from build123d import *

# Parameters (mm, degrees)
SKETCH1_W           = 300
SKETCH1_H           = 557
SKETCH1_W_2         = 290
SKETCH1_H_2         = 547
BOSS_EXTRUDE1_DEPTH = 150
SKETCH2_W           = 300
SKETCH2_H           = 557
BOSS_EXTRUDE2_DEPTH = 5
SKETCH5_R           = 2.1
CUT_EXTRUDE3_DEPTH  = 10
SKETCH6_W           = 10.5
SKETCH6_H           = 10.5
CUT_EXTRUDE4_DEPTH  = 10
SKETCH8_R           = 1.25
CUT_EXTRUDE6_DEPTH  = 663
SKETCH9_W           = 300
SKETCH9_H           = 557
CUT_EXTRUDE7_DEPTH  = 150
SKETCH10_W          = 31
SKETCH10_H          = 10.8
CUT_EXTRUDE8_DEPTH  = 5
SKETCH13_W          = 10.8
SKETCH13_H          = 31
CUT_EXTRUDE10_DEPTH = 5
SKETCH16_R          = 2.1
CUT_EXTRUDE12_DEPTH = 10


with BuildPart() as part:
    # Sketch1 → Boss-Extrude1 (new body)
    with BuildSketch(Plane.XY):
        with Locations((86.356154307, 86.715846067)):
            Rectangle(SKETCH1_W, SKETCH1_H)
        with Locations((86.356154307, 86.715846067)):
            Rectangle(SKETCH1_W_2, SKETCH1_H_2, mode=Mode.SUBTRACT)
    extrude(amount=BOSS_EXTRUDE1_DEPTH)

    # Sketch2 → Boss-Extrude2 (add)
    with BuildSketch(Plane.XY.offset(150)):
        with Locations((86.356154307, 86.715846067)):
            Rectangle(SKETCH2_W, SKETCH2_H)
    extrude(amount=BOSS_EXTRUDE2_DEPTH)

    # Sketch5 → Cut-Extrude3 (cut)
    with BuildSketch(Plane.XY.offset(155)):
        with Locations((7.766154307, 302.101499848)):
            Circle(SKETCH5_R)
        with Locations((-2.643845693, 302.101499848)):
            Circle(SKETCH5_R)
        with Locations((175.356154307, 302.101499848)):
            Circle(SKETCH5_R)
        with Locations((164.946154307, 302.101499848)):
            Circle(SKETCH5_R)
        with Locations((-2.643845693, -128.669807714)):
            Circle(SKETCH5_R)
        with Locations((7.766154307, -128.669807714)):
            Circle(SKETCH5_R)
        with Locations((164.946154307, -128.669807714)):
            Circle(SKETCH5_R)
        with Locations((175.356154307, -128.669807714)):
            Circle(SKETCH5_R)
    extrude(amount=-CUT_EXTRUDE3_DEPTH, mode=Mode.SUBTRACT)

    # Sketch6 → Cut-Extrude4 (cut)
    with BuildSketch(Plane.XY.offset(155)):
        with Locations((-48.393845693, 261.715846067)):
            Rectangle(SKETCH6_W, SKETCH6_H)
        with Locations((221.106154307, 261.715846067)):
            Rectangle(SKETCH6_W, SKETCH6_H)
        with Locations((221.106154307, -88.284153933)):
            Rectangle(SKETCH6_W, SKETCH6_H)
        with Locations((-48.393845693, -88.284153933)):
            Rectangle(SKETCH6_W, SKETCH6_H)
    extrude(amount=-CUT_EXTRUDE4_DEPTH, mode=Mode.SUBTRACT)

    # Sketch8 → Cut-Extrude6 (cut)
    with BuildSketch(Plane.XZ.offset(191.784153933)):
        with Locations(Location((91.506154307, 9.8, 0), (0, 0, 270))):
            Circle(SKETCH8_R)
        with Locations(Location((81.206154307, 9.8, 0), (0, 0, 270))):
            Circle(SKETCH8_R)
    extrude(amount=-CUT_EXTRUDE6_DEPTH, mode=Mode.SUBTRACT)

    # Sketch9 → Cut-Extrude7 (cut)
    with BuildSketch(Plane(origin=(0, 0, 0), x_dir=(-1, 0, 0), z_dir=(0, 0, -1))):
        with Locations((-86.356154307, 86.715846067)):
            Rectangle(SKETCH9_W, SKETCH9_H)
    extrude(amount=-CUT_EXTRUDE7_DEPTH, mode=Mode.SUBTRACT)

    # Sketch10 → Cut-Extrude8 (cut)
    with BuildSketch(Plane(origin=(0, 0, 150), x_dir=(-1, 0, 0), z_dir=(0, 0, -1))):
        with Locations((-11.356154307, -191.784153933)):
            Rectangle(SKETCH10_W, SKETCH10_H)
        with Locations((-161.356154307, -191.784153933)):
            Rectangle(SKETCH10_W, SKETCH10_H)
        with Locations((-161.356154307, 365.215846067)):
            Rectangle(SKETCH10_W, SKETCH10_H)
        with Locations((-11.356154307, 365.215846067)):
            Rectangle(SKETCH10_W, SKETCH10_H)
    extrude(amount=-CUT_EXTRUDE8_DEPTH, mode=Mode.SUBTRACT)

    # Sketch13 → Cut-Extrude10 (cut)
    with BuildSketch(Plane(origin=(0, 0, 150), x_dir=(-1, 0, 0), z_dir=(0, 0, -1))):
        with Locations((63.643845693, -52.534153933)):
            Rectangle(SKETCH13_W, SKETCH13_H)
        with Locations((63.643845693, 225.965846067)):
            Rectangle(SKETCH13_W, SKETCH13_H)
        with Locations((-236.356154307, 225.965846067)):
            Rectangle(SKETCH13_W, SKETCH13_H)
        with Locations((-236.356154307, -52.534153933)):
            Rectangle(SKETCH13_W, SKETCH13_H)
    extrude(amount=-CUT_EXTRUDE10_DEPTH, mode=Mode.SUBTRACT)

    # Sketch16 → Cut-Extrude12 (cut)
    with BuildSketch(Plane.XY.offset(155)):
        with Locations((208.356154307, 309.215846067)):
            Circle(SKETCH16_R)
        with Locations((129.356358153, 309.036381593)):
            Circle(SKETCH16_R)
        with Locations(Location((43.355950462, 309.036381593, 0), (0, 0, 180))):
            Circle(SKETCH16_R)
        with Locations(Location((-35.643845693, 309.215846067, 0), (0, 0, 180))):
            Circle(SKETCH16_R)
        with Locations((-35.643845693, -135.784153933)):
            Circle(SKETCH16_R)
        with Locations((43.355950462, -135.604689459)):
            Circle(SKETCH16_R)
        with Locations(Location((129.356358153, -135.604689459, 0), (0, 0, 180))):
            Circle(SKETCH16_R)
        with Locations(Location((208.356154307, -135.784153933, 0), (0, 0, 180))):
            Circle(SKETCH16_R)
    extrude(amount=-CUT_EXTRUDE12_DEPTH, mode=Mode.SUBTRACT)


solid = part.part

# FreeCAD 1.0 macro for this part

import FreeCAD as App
import Part
import Sketcher
Q = App.Units.Quantity


def add_polygon(sketch, points):
    """Adds a closed chain of lines whose ends are joined by coincident constraints."""
    first, n = sketch.GeometryCount, len(points)
    for a, b in zip(points, points[1:] + points[:1]):
        sketch.addGeometry(Part.LineSegment(App.Vector(*a, 0), App.Vector(*b, 0)), False)
    for i in range(n):
        sketch.addConstraint(Sketcher.Constraint("Coincident", first + i, 2, first + (i + 1) % n, 1))

doc = App.newDocument("Part")
body = doc.addObject("PartDesign::Body", "Body")

sketch1 = body.newObject("Sketcher::SketchObject", "Sketch")
sketch1.AttachmentSupport = (doc.getObject("XY_Plane"), [""])
sketch1.MapMode = "FlatFace"
add_polygon(sketch1, [(-63.643846, 365.215846), (-63.643846, -191.784154), (236.356154, -191.784154), (236.356154, 365.215846)])
add_polygon(sketch1, [(231.356154, -186.784154), (-58.643846, -186.784154), (-58.643846, 360.215846), (231.356154, 360.215846)])
sketch1.addConstraint(Sketcher.Constraint("Vertical", 0))
sketch1.addConstraint(Sketcher.Constraint("Horizontal", 1))
sketch1.addConstraint(Sketcher.Constraint("Vertical", 2))
sketch1.addConstraint(Sketcher.Constraint("Horizontal", 3))
sketch1.addConstraint(Sketcher.Constraint("Horizontal", 4))
sketch1.addConstraint(Sketcher.Constraint("Vertical", 5))
sketch1.addConstraint(Sketcher.Constraint("Horizontal", 6))
sketch1.addConstraint(Sketcher.Constraint("Vertical", 7))
sketch1.addConstraint(Sketcher.Constraint("DistanceX", 1, 1, 1, 2, Q("300 mm")))
sketch1.addConstraint(Sketcher.Constraint("DistanceX", 4, 2, 4, 1, Q("290 mm")))
sketch1.addConstraint(Sketcher.Constraint("DistanceY", 0, 2, 0, 1, Q("557 mm")))
sketch1.addConstraint(Sketcher.Constraint("DistanceY", 5, 1, 5, 2, Q("547 mm")))
sketch1.addConstraint(Sketcher.Constraint("DistanceX", 0, 2, 4, 2, Q("5 mm")))
sketch1.addConstraint(Sketcher.Constraint("DistanceY", 0, 2, 4, 2, Q("5 mm")))
sketch1.addConstraint(Sketcher.Constraint("DistanceX", 0, 2, -1, 1, Q("63.643846 mm")))
sketch1.addConstraint(Sketcher.Constraint("DistanceY", 0, 2, -1, 1, Q("191.784154 mm")))
pad1 = body.newObject("PartDesign::Pad", "Pad")
pad1.Profile = sketch1
pad1.Length = 150

sketch2 = body.newObject("Sketcher::SketchObject", "Sketch001")
sketch2.AttachmentSupport = (doc.getObject("XY_Plane"), [""])
sketch2.MapMode = "FlatFace"
sketch2.AttachmentOffset = App.Placement(App.Vector(0, 0, 150), App.Rotation())
add_polygon(sketch2, [(-63.643846, 365.215846), (-63.643846, -191.784154), (236.356154, -191.784154), (236.356154, 365.215846)])
sketch2.addConstraint(Sketcher.Constraint("Vertical", 0))
sketch2.addConstraint(Sketcher.Constraint("Horizontal", 1))
sketch2.addConstraint(Sketcher.Constraint("Vertical", 2))
sketch2.addConstraint(Sketcher.Constraint("Horizontal", 3))
sketch2.addConstraint(Sketcher.Constraint("DistanceX", 1, 1, 1, 2, Q("300 mm")))
sketch2.addConstraint(Sketcher.Constraint("DistanceY", 0, 2, 0, 1, Q("557 mm")))
sketch2.addConstraint(Sketcher.Constraint("DistanceX", 0, 2, -1, 1, Q("63.643846 mm")))
sketch2.addConstraint(Sketcher.Constraint("DistanceY", 0, 2, -1, 1, Q("191.784154 mm")))
pad2 = body.newObject("PartDesign::Pad", "Pad001")
pad2.Profile = sketch2
pad2.Length = 5

sketch3 = body.newObject("Sketcher::SketchObject", "Sketch002")
sketch3.AttachmentSupport = (doc.getObject("XY_Plane"), [""])
sketch3.MapMode = "FlatFace"
sketch3.AttachmentOffset = App.Placement(App.Vector(0, 0, 155), App.Rotation())
sketch3.addGeometry(Part.Circle(App.Vector(7.766154, 302.1015, 0), App.Vector(0, 0, 1), 2.1), False)
sketch3.addGeometry(Part.Circle(App.Vector(-2.643846, 302.1015, 0), App.Vector(0, 0, 1), 2.1), False)
sketch3.addGeometry(Part.Circle(App.Vector(175.356154, 302.1015, 0), App.Vector(0, 0, 1), 2.1), False)
sketch3.addGeometry(Part.Circle(App.Vector(164.946154, 302.1015, 0), App.Vector(0, 0, 1), 2.1), False)
sketch3.addGeometry(Part.Circle(App.Vector(-2.643846, -128.669808, 0), App.Vector(0, 0, 1), 2.1), False)
sketch3.addGeometry(Part.Circle(App.Vector(7.766154, -128.669808, 0), App.Vector(0, 0, 1), 2.1), False)
sketch3.addGeometry(Part.Circle(App.Vector(164.946154, -128.669808, 0), App.Vector(0, 0, 1), 2.1), False)
sketch3.addGeometry(Part.Circle(App.Vector(175.356154, -128.669808, 0), App.Vector(0, 0, 1), 2.1), False)
sketch3.addConstraint(Sketcher.Constraint("Equal", 0, 1))
sketch3.addConstraint(Sketcher.Constraint("Equal", 1, 2))
sketch3.addConstraint(Sketcher.Constraint("Equal", 2, 3))
sketch3.addConstraint(Sketcher.Constraint("Equal", 3, 4))
sketch3.addConstraint(Sketcher.Constraint("Equal", 4, 5))
sketch3.addConstraint(Sketcher.Constraint("Equal", 5, 6))
sketch3.addConstraint(Sketcher.Constraint("Equal", 6, 7))
sketch3.addConstraint(Sketcher.Constraint("Horizontal", 0, 3, 1, 3))
sketch3.addConstraint(Sketcher.Constraint("Horizontal", 1, 3, 2, 3))
sketch3.addConstraint(Sketcher.Constraint("Horizontal", 2, 3, 3, 3))
sketch3.addConstraint(Sketcher.Constraint("Horizontal", 4, 3, 5, 3))
sketch3.addConstraint(Sketcher.Constraint("Horizontal", 5, 3, 6, 3))
sketch3.addConstraint(Sketcher.Constraint("Horizontal", 6, 3, 7, 3))
sketch3.addConstraint(Sketcher.Constraint("Vertical", 1, 3, 4, 3))
sketch3.addConstraint(Sketcher.Constraint("Vertical", 0, 3, 5, 3))
sketch3.addConstraint(Sketcher.Constraint("Vertical", 3, 3, 6, 3))
sketch3.addConstraint(Sketcher.Constraint("Vertical", 2, 3, 7, 3))
sketch3.addConstraint(Sketcher.Constraint("Diameter", 0, Q("4.2 mm")))
sketch3.addConstraint(Sketcher.Constraint("DistanceX", 1, 3, 2, 3, Q("178 mm")))
sketch3.addConstraint(Sketcher.Constraint("DistanceX", 1, 3, 0, 3, Q("10.41 mm")))
sketch3.addConstraint(Sketcher.Constraint("DistanceX", 3, 3, 2, 3, Q("10.41 mm")))
sketch3.addConstraint(Sketcher.Constraint("DistanceY", -1, 1, 0, 3, Q("302.1015 mm")))
sketch3.addConstraint(Sketcher.Constraint("DistanceX", -1, 1, 0, 3, Q("7.766154 mm")))
sketch3.addConstraint(Sketcher.Constraint("DistanceY", 4, 3, -1, 1, Q("128.669808 mm")))
pocket1 = body.newObject("PartDesign::Pocket", "Pocket")
pocket1.Profile = sketch3
pocket1.Length = 10

sketch4 = body.newObject("Sketcher::SketchObject", "Sketch003")
sketch4.AttachmentSupport = (doc.getObject("XY_Plane"), [""])
sketch4.MapMode = "FlatFace"
sketch4.AttachmentOffset = App.Placement(App.Vector(0, 0, 155), App.Rotation())
add_polygon(sketch4, [(-53.643846, 266.965846), (-53.643846, 256.465846), (-43.143846, 256.465846), (-43.143846, 266.965846)])
add_polygon(sketch4, [(215.856154, 266.965846), (215.856154, 256.465846), (226.356154, 256.465846), (226.356154, 266.965846)])
add_polygon(sketch4, [(215.856154, -83.034154), (215.856154, -93.534154), (226.356154, -93.534154), (226.356154, -83.034154)])
add_polygon(sketch4, [(-53.643846, -83.034154), (-53.643846, -93.534154), (-43.143846, -93.534154), (-43.143846, -83.034154)])
sketch4.addConstraint(Sketcher.Constraint("Vertical", 0))
sketch4.addConstraint(Sketcher.Constraint("Horizontal", 1))
sketch4.addConstraint(Sketcher.Constraint("Vertical", 2))
sketch4.addConstraint(Sketcher.Constraint("Horizontal", 3))
sketch4.addConstraint(Sketcher.Constraint("Vertical", 4))
sketch4.addConstraint(Sketcher.Constraint("Horizontal", 5))
sketch4.addConstraint(Sketcher.Constraint("Vertical", 6))
sketch4.addConstraint(Sketcher.Constraint("Horizontal", 7))
sketch4.addConstraint(Sketcher.Constraint("Vertical", 8))
sketch4.addConstraint(Sketcher.Constraint("Horizontal", 9))
sketch4.addConstraint(Sketcher.Constraint("Vertical", 10))
sketch4.addConstraint(Sketcher.Constraint("Horizontal", 11))
sketch4.addConstraint(Sketcher.Constraint("Vertical", 12))
sketch4.addConstraint(Sketcher.Constraint("Horizontal", 13))
sketch4.addConstraint(Sketcher.Constraint("Vertical", 14))
sketch4.addConstraint(Sketcher.Constraint("Horizontal", 15))
sketch4.addConstraint(Sketcher.Constraint("Horizontal", 1, 2, 4, 2))
sketch4.addConstraint(Sketcher.Constraint("Horizontal", 3, 2, 6, 2))
sketch4.addConstraint(Sketcher.Constraint("Horizontal", 9, 2, 12, 2))
sketch4.addConstraint(Sketcher.Constraint("Horizontal", 11, 2, 14, 2))
sketch4.addConstraint(Sketcher.Constraint("Vertical", 7, 2, 8, 2))
sketch4.addConstraint(Sketcher.Constraint("Vertical", 6, 2, 9, 2))
sketch4.addConstraint(Sketcher.Constraint("Vertical", 3, 2, 12, 2))
sketch4.addConstraint(Sketcher.Constraint("Vertical", 2, 2, 13, 2))
sketch4.addConstraint(Sketcher.Constraint("Equal", 3, 5))
sketch4.addConstraint(Sketcher.Constraint("Equal", 15, 0))
sketch4.addConstraint(Sketcher.Constraint("Equal", 6, 8))
sketch4.addConstraint(Sketcher.Constraint("DistanceX", 1, 1, 1, 2, Q("10.5 mm")))
sketch4.addConstraint(Sketcher.Constraint("DistanceX", 1, 2, 4, 2, Q("259 mm")))
sketch4.addConstraint(Sketcher.Constraint("DistanceY", 8, 2, 4, 2, Q("350 mm")))
sketch4.addConstraint(Sketcher.Constraint("DistanceX", 0, 2, -1, 1, Q("53.643846 mm")))
sketch4.addConstraint(Sketcher.Constraint("DistanceY", -1, 1, 0, 2, Q("256.465846 mm")))
pocket2 = body.newObject("PartDesign::Pocket", "Pocket001")
pocket2.Profile = sketch4
pocket2.Length = 10

sketch5 = body.newObject("Sketcher::SketchObject", "Sketch004")
sketch5.AttachmentSupport = (doc.getObject("XZ_Plane"), [""])
sketch5.MapMode = "FlatFace"
sketch5.AttachmentOffset = App.Placement(App.Vector(0, 0, 191.784154), App.Rotation())
sketch5.addGeometry(Part.Circle(App.Vector(91.506154, 9.8, 0), App.Vector(0, 0, 1), 1.25), False)
sketch5.addGeometry(Part.Circle(App.Vector(81.206154, 9.8, 0), App.Vector(0, 0, 1), 1.25), False)
sketch5.addConstraint(Sketcher.Constraint("Equal", 0, 1))
sketch5.addConstraint(Sketcher.Constraint("Horizontal", 0, 3, 1, 3))
sketch5.addConstraint(Sketcher.Constraint("Diameter", 0, Q("2.5 mm")))
sketch5.addConstraint(Sketcher.Constraint("DistanceY", -1, 1, 0, 3, Q("9.8 mm")))
sketch5.addConstraint(Sketcher.Constraint("DistanceX", 1, 3, 0, 3, Q("10.3 mm")))
sketch5.addConstraint(Sketcher.Constraint("DistanceX", -1, 1, 0, 3, Q("91.506154 mm")))
pocket3 = body.newObject("PartDesign::Pocket", "Pocket002")
pocket3.Profile = sketch5
pocket3.Length = 663

sketch6 = body.newObject("Sketcher::SketchObject", "Sketch005")
sketch6.AttachmentSupport = (doc.getObject("XY_Plane"), [""])
sketch6.MapMode = "FlatFace"
add_polygon(sketch6, [(236.356154, 365.215846), (236.356154, -191.784154), (-63.643846, -191.784154), (-63.643846, 365.215846)])
sketch6.addConstraint(Sketcher.Constraint("Vertical", 0))
sketch6.addConstraint(Sketcher.Constraint("Horizontal", 1))
sketch6.addConstraint(Sketcher.Constraint("Vertical", 2))
sketch6.addConstraint(Sketcher.Constraint("Horizontal", 3))
sketch6.addConstraint(Sketcher.Constraint("DistanceX", 1, 2, 1, 1, Q("300 mm")))
sketch6.addConstraint(Sketcher.Constraint("DistanceY", 0, 2, 0, 1, Q("557 mm")))
sketch6.addConstraint(Sketcher.Constraint("DistanceX", -1, 1, 0, 2, Q("236.356154 mm")))
sketch6.addConstraint(Sketcher.Constraint("DistanceY", 0, 2, -1, 1, Q("191.784154 mm")))
pocket4 = body.newObject("PartDesign::Pocket", "Pocket003")
pocket4.Profile = sketch6
pocket4.Length = 150
pocket4.Reversed = True

sketch7 = body.newObject("Sketcher::SketchObject", "Sketch006")
sketch7.AttachmentSupport = (doc.getObject("XY_Plane"), [""])
sketch7.MapMode = "FlatFace"
sketch7.AttachmentOffset = App.Placement(App.Vector(0, 0, 150), App.Rotation())
add_polygon(sketch7, [(26.856154, -186.384154), (26.856154, -197.184154), (-4.143846, -197.184154), (-4.143846, -186.384154)])
add_polygon(sketch7, [(176.856154, -186.384154), (176.856154, -197.184154), (145.856154, -197.184154), (145.856154, -186.384154)])
add_polygon(sketch7, [(176.856154, 370.615846), (176.856154, 359.815846), (145.856154, 359.815846), (145.856154, 370.615846)])
add_polygon(sketch7, [(26.856154, 370.615846), (26.856154, 359.815846), (-4.143846, 359.815846), (-4.143846, 370.615846)])
sketch7.addConstraint(Sketcher.Constraint("Vertical", 0))
sketch7.addConstraint(Sketcher.Constraint("Horizontal", 1))
sketch7.addConstraint(Sketcher.Constraint("Vertical", 2))
sketch7.addConstraint(Sketcher.Constraint("Horizontal", 3))
sketch7.addConstraint(Sketcher.Constraint("Vertical", 4))
sketch7.addConstraint(Sketcher.Constraint("Horizontal", 5))
sketch7.addConstraint(Sketcher.Constraint("Vertical", 6))
sketch7.addConstraint(Sketcher.Constraint("Horizontal", 7))
sketch7.addConstraint(Sketcher.Constraint("Vertical", 8))
sketch7.addConstraint(Sketcher.Constraint("Horizontal", 9))
sketch7.addConstraint(Sketcher.Constraint("Vertical", 10))
sketch7.addConstraint(Sketcher.Constraint("Horizontal", 11))
sketch7.addConstraint(Sketcher.Constraint("Vertical", 12))
sketch7.addConstraint(Sketcher.Constraint("Horizontal", 13))
sketch7.addConstraint(Sketcher.Constraint("Vertical", 14))
sketch7.addConstraint(Sketcher.Constraint("Horizontal", 15))
sketch7.addConstraint(Sketcher.Constraint("Horizontal", 1, 2, 4, 2))
sketch7.addConstraint(Sketcher.Constraint("Horizontal", 3, 2, 6, 2))
sketch7.addConstraint(Sketcher.Constraint("Horizontal", 9, 2, 12, 2))
sketch7.addConstraint(Sketcher.Constraint("Horizontal", 11, 2, 14, 2))
sketch7.addConstraint(Sketcher.Constraint("Vertical", 7, 2, 8, 2))
sketch7.addConstraint(Sketcher.Constraint("Vertical", 6, 2, 9, 2))
sketch7.addConstraint(Sketcher.Constraint("Vertical", 3, 2, 12, 2))
sketch7.addConstraint(Sketcher.Constraint("Vertical", 2, 2, 13, 2))
sketch7.addConstraint(Sketcher.Constraint("Equal", 3, 5))
sketch7.addConstraint(Sketcher.Constraint("Equal", 6, 8))
sketch7.addConstraint(Sketcher.Constraint("DistanceX", 1, 2, 1, 1, Q("31 mm")))
sketch7.addConstraint(Sketcher.Constraint("DistanceY", 0, 2, 0, 1, Q("10.8 mm")))
sketch7.addConstraint(Sketcher.Constraint("DistanceX", 0, 2, 4, 2, Q("150 mm")))
sketch7.addConstraint(Sketcher.Constraint("DistanceY", 4, 2, 8, 2, Q("557 mm")))
sketch7.addConstraint(Sketcher.Constraint("DistanceX", -1, 1, 0, 2, Q("26.856154 mm")))
sketch7.addConstraint(Sketcher.Constraint("DistanceY", 0, 2, -1, 1, Q("197.184154 mm")))
pocket5 = body.newObject("PartDesign::Pocket", "Pocket004")
pocket5.Profile = sketch7
pocket5.Length = 5
pocket5.Reversed = True

sketch8 = body.newObject("Sketcher::SketchObject", "Sketch007")
sketch8.AttachmentSupport = (doc.getObject("XY_Plane"), [""])
sketch8.MapMode = "FlatFace"
sketch8.AttachmentOffset = App.Placement(App.Vector(0, 0, 150), App.Rotation())
add_polygon(sketch8, [(-58.243846, -37.034154), (-58.243846, -68.034154), (-69.043846, -68.034154), (-69.043846, -37.034154)])
add_polygon(sketch8, [(-58.243846, 241.465846), (-58.243846, 210.465846), (-69.043846, 210.465846), (-69.043846, 241.465846)])
add_polygon(sketch8, [(241.756154, 241.465846), (241.756154, 210.465846), (230.956154, 210.465846), (230.956154, 241.465846)])
add_polygon(sketch8, [(241.756154, -37.034154), (241.756154, -68.034154), (230.956154, -68.034154), (230.956154, -37.034154)])
sketch8.addConstraint(Sketcher.Constraint("Vertical", 0))
sketch8.addConstraint(Sketcher.Constraint("Horizontal", 1))
sketch8.addConstraint(Sketcher.Constraint("Vertical", 2))
sketch8.addConstraint(Sketcher.Constraint("Horizontal", 3))
sketch8.addConstraint(Sketcher.Constraint("Vertical", 4))
sketch8.addConstraint(Sketcher.Constraint("Horizontal", 5))
sketch8.addConstraint(Sketcher.Constraint("Vertical", 6))
sketch8.addConstraint(Sketcher.Constraint("Horizontal", 7))
sketch8.addConstraint(Sketcher.Constraint("Vertical", 8))
sketch8.addConstraint(Sketcher.Constraint("Horizontal", 9))
sketch8.addConstraint(Sketcher.Constraint("Vertical", 10))
sketch8.addConstraint(Sketcher.Constraint("Horizontal", 11))
sketch8.addConstraint(Sketcher.Constraint("Vertical", 12))
sketch8.addConstraint(Sketcher.Constraint("Horizontal", 13))
sketch8.addConstraint(Sketcher.Constraint("Vertical", 14))
sketch8.addConstraint(Sketcher.Constraint("Horizontal", 15))
sketch8.addConstraint(Sketcher.Constraint("Horizontal", 5, 2, 8, 2))
sketch8.addConstraint(Sketcher.Constraint("Horizontal", 7, 2, 10, 2))
sketch8.addConstraint(Sketcher.Constraint("Horizontal", 1, 2, 12, 2))
sketch8.addConstraint(Sketcher.Constraint("Horizontal", 3, 2, 14, 2))
sketch8.addConstraint(Sketcher.Constraint("Vertical", 3, 2, 4, 2))
sketch8.addConstraint(Sketcher.Constraint("Vertical", 2, 2, 5, 2))
sketch8.addConstraint(Sketcher.Constraint("Vertical", 11, 2, 12, 2))
sketch8.addConstraint(Sketcher.Constraint("Vertical", 10, 2, 13, 2))
sketch8.addConstraint(Sketcher.Constraint("Equal", 7, 9))
sketch8.addConstraint(Sketcher.Constraint("Equal", 2, 4))
sketch8.addConstraint(Sketcher.Constraint("DistanceY", 0, 2, 0, 1, Q("31 mm")))
sketch8.addConstraint(Sketcher.Constraint("DistanceX", 1, 2, 1, 1, Q("10.8 mm")))
sketch8.addConstraint(Sketcher.Constraint("DistanceX", 4, 2, 8, 2, Q("300 mm")))
sketch8.addConstraint(Sketcher.Constraint("DistanceY", 3, 2, 4, 2, Q("247.5 mm")))
sketch8.addConstraint(Sketcher.Constraint("DistanceX", 0, 2, -1, 1, Q("58.243846 mm")))
sketch8.addConstraint(Sketcher.Constraint("DistanceY", 0, 2, -1, 1, Q("68.034154 mm")))
pocket6 = body.newObject("PartDesign::Pocket", "Pocket005")
pocket6.Profile = sketch8
pocket6.Length = 5
pocket6.Reversed = True

sketch9 = body.newObject("Sketcher::SketchObject", "Sketch008")
sketch9.AttachmentSupport = (doc.getObject("XY_Plane"), [""])
sketch9.MapMode = "FlatFace"
sketch9.AttachmentOffset = App.Placement(App.Vector(0, 0, 155), App.Rotation())
sketch9.addGeometry(Part.Circle(App.Vector(208.356154, 309.215846, 0), App.Vector(0, 0, 1), 2.1), False)
sketch9.addGeometry(Part.Circle(App.Vector(129.356358, 309.036382, 0), App.Vector(0, 0, 1), 2.1), False)
sketch9.addGeometry(Part.Circle(App.Vector(43.35595, 309.036382, 0), App.Vector(0, 0, 1), 2.1), False)
sketch9.addGeometry(Part.Circle(App.Vector(-35.643846, 309.215846, 0), App.Vector(0, 0, 1), 2.1), False)
sketch9.addGeometry(Part.Circle(App.Vector(-35.643846, -135.784154, 0), App.Vector(0, 0, 1), 2.1), False)
sketch9.addGeometry(Part.Circle(App.Vector(43.35595, -135.604689, 0), App.Vector(0, 0, 1), 2.1), False)
sketch9.addGeometry(Part.Circle(App.Vector(129.356358, -135.604689, 0), App.Vector(0, 0, 1), 2.1), False)
sketch9.addGeometry(Part.Circle(App.Vector(208.356154, -135.784154, 0), App.Vector(0, 0, 1), 2.1), False)
sketch9.addConstraint(Sketcher.Constraint("Equal", 0, 1))
sketch9.addConstraint(Sketcher.Constraint("Equal", 1, 2))
sketch9.addConstraint(Sketcher.Constraint("Equal", 2, 3))
sketch9.addConstraint(Sketcher.Constraint("Equal", 3, 4))
sketch9.addConstraint(Sketcher.Constraint("Equal", 4, 5))
sketch9.addConstraint(Sketcher.Constraint("Equal", 5, 6))
sketch9.addConstraint(Sketcher.Constraint("Equal", 6, 7))
sketch9.addConstraint(Sketcher.Constraint("Horizontal", 1, 3, 2, 3))
sketch9.addConstraint(Sketcher.Constraint("Horizontal", 0, 3, 3, 3))
sketch9.addConstraint(Sketcher.Constraint("Horizontal", 5, 3, 6, 3))
sketch9.addConstraint(Sketcher.Constraint("Horizontal", 4, 3, 7, 3))
sketch9.addConstraint(Sketcher.Constraint("Vertical", 3, 3, 4, 3))
sketch9.addConstraint(Sketcher.Constraint("Vertical", 2, 3, 5, 3))
sketch9.addConstraint(Sketcher.Constraint("Vertical", 1, 3, 6, 3))
sketch9.addConstraint(Sketcher.Constraint("Vertical", 0, 3, 7, 3))
sketch9.addConstraint(Sketcher.Constraint("Diameter", 0, Q("4.2 mm")))
sketch9.addConstraint(Sketcher.Constraint("DistanceX", 3, 3, 0, 3, Q("244 mm")))
sketch9.addConstraint(Sketcher.Constraint("DistanceY", 4, 3, 3, 3, Q("445 mm")))
sketch9.addConstraint(Sketcher.Constraint("DistanceX", -1, 1, 1, 3, Q("129.356358 mm")))
sketch9.addConstraint(Sketcher.Constraint("DistanceY", -1, 1, 1, 3, Q("309.036382 mm")))
sketch9.addConstraint(Sketcher.Constraint("DistanceX", -1, 1, 2, 3, Q("43.35595 mm")))
sketch9.addConstraint(Sketcher.Constraint("DistanceY", 5, 3, -1, 1, Q("135.604689 mm")))
sketch9.addConstraint(Sketcher.Constraint("DistanceX", -1, 1, 0, 3, Q("208.356154 mm")))
sketch9.addConstraint(Sketcher.Constraint("DistanceY", -1, 1, 0, 3, Q("309.215846 mm")))
pocket7 = body.newObject("PartDesign::Pocket", "Pocket006")
pocket7.Profile = sketch9
pocket7.Length = 10

doc.recompute()
